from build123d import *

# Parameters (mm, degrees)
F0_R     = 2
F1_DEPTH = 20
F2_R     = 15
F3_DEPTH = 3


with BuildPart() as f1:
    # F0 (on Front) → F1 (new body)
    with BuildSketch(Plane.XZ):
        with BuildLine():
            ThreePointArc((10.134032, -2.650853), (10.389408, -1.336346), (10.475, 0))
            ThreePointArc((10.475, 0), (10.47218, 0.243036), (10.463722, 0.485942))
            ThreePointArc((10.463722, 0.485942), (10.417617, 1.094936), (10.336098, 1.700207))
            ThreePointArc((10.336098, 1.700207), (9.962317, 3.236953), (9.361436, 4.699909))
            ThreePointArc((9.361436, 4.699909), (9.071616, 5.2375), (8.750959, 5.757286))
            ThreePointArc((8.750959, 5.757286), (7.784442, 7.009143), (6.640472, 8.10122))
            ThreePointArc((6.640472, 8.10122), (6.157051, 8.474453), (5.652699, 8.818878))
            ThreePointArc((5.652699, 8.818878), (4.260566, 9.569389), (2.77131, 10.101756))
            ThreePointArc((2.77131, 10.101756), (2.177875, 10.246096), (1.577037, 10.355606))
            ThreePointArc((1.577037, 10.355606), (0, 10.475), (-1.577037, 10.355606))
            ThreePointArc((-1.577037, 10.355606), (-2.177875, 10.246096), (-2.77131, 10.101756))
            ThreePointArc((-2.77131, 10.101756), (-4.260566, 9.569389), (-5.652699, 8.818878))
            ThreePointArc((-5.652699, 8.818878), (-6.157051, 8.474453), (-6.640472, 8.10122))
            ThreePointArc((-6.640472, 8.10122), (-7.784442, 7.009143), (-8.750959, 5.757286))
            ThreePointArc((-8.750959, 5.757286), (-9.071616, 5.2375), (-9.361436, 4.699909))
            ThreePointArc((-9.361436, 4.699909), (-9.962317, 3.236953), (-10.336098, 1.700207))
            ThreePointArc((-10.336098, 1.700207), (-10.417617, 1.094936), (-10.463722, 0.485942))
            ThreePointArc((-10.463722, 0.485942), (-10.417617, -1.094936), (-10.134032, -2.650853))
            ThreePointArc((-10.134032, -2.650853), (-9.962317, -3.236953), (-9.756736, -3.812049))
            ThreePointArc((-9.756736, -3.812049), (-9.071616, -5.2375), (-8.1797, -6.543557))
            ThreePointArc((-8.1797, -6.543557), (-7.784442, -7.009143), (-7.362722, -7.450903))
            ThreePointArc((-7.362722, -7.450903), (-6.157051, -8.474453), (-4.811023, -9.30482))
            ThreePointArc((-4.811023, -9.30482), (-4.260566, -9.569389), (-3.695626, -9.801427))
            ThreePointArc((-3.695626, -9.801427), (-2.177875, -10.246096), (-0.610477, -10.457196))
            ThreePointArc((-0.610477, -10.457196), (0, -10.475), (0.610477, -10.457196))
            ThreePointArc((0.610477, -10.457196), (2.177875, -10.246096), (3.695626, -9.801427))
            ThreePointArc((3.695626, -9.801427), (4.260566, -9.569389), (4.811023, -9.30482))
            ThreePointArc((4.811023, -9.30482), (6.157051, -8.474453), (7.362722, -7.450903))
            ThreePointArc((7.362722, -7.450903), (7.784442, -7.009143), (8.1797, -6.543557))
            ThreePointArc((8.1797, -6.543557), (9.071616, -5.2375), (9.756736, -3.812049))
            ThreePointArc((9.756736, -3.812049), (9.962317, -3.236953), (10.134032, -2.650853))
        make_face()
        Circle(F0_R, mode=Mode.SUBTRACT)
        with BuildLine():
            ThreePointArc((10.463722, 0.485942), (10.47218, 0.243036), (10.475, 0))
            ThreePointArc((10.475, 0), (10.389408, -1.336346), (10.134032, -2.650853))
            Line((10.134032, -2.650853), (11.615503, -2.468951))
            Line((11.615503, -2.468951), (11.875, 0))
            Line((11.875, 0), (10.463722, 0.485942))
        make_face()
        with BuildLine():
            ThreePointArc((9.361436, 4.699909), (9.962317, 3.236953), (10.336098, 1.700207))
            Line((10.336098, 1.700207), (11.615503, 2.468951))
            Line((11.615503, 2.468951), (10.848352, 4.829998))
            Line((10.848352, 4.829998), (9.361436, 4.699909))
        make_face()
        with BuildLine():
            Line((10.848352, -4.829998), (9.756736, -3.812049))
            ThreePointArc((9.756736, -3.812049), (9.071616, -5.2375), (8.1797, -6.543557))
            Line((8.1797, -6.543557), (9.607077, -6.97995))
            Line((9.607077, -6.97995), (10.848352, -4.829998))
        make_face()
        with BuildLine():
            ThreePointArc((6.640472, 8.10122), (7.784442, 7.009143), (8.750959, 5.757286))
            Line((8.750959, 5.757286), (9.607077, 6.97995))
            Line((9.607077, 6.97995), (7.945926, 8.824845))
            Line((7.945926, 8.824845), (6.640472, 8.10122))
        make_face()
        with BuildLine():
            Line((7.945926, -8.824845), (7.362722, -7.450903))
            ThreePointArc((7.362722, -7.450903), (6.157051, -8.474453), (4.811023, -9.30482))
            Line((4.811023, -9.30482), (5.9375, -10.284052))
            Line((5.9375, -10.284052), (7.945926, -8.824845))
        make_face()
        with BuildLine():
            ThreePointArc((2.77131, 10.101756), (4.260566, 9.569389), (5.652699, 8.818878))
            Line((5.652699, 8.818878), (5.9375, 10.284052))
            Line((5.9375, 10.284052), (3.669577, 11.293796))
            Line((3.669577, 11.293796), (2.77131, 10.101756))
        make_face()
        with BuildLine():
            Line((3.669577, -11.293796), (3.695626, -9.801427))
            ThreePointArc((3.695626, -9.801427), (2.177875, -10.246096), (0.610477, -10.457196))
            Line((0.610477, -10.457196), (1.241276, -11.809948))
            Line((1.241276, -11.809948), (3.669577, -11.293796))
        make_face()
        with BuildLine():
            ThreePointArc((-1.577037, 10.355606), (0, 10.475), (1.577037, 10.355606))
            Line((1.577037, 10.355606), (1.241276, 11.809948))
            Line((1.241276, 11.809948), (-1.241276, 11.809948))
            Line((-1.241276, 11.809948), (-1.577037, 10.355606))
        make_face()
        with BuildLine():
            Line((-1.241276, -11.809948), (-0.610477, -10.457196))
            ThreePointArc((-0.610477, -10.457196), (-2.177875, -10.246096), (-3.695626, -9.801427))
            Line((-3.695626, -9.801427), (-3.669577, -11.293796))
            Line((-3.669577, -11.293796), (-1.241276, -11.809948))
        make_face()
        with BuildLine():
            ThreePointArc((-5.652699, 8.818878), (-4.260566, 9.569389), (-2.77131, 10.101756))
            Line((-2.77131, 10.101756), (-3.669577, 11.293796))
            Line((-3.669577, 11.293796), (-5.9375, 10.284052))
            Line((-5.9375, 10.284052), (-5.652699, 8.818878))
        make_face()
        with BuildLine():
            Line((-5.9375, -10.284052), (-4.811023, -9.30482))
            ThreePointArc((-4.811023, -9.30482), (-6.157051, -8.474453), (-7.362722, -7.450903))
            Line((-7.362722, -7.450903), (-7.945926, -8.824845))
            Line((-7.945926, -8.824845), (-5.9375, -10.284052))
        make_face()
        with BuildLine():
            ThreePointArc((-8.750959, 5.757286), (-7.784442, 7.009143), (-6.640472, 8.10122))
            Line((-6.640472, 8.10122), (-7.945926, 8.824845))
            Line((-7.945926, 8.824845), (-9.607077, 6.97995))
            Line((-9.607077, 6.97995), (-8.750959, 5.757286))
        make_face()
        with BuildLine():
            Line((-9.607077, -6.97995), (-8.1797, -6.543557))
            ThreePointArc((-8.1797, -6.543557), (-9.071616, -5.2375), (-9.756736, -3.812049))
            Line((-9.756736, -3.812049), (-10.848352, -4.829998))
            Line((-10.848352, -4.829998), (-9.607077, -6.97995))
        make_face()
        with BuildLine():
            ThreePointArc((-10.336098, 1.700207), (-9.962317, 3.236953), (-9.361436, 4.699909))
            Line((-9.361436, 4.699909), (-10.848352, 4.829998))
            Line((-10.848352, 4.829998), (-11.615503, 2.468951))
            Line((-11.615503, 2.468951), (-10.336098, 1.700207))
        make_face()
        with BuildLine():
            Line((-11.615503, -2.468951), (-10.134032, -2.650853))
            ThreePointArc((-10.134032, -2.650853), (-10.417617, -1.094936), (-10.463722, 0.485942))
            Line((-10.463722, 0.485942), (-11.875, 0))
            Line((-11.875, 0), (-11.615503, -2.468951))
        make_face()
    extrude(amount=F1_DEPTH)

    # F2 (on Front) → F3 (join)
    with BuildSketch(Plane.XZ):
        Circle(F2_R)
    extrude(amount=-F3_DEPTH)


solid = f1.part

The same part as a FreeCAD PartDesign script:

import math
import FreeCAD as App
import Part
import Sketcher
from FreeCAD import Vector
Q = App.Units.Quantity

doc = App.newDocument("Part")
body = doc.addObject("PartDesign::Body", "Body")

# Sketch on XZ plane
sketch1 = body.newObject("Sketcher::SketchObject", "Sketch")
sketch1.AttachmentSupport = (doc.getObject("XZ_Plane"), [""])
sketch1.MapMode = "FlatFace"
sketch1.addGeometry(Part.ArcOfCircle(Part.Circle(Vector(0.000112, -0.000032, 0), Vector(0, 0, 1), 10.474883), math.radians(-21.34112), math.radians(-14.658929)), False)
sketch1.addGeometry(Part.LineSegment(Vector(10.134032, -2.650853, 0), Vector(11.615503, -2.468951, 0)), False)
sketch1.addGeometry(Part.LineSegment(Vector(11.615503, -2.468951, 0), Vector(11.875, 0, 0)), False)
sketch1.addGeometry(Part.LineSegment(Vector(11.875, 0, 0), Vector(10.463722, 0.485942, 0)), False)
sketch1.addGeometry(Part.ArcOfCircle(Part.Circle(Vector(0.000198, 0.000024, 0), Vector(0, 0, 1), 10.474801), math.radians(2.658861), math.radians(9.341102)), False)
sketch1.addGeometry(Part.LineSegment(Vector(10.336098, 1.700207, 0), Vector(11.615503, 2.468951, 0)), False)
sketch1.addGeometry(Part.LineSegment(Vector(11.615503, 2.468951, 0), Vector(10.848352, 4.829998, 0)), False)
sketch1.addGeometry(Part.LineSegment(Vector(10.848352, 4.829998, 0), Vector(9.361436, 4.699909, 0)), False)
sketch1.addGeometry(Part.ArcOfCircle(Part.Circle(Vector(-0.000095, -0.000057, 0), Vector(0, 0, 1), 10.475111), math.radians(26.658982), math.radians(33.341027)), False)
sketch1.addGeometry(Part.LineSegment(Vector(8.750959, 5.757286, 0), Vector(9.607077, 6.97995, 0)), False)
sketch1.addGeometry(Part.LineSegment(Vector(9.607077, 6.97995, 0), Vector(7.945926, 8.824845, 0)), False)
sketch1.addGeometry(Part.LineSegment(Vector(7.945926, 8.824845, 0), Vector(6.640472, 8.10122, 0)), False)
sketch1.addGeometry(Part.ArcOfCircle(Part.Circle(Vector(0.000108, 0.000135, 0), Vector(0, 0, 1), 10.474828), math.radians(50.658928), math.radians(57.341155)), False)
sketch1.addGeometry(Part.LineSegment(Vector(5.652699, 8.818878, 0), Vector(5.9375, 10.284052, 0)), False)
sketch1.addGeometry(Part.LineSegment(Vector(5.9375, 10.284052, 0), Vector(3.669577, 11.293796, 0)), False)
sketch1.addGeometry(Part.LineSegment(Vector(3.669577, 11.293796, 0), Vector(2.77131, 10.101756, 0)), False)
sketch1.addGeometry(Part.ArcOfCircle(Part.Circle(Vector(-0.000022, -0.000128, 0), Vector(0, 0, 1), 10.475129), math.radians(74.65901), math.radians(81.341042)), False)
sketch1.addGeometry(Part.LineSegment(Vector(1.577037, 10.355606, 0), Vector(1.241276, 11.809948, 0)), False)
sketch1.addGeometry(Part.LineSegment(Vector(1.241276, 11.809948, 0), Vector(-1.241276, 11.809948, 0)), False)
sketch1.addGeometry(Part.LineSegment(Vector(-1.241276, 11.809948, 0), Vector(-1.577037, 10.355606, 0)), False)
sketch1.addGeometry(Part.ArcOfCircle(Part.Circle(Vector(0.000022, -0.000128, 0), Vector(0, 0, 1), 10.475129), math.radians(98.658958), math.radians(105.34099)), False)
sketch1.addGeometry(Part.LineSegment(Vector(-2.77131, 10.101756, 0), Vector(-3.669577, 11.293796, 0)), False)
sketch1.addGeometry(Part.LineSegment(Vector(-3.669577, 11.293796, 0), Vector(-5.9375, 10.284052, 0)), False)
sketch1.addGeometry(Part.LineSegment(Vector(-5.9375, 10.284052, 0), Vector(-5.652699, 8.818878, 0)), False)
sketch1.addGeometry(Part.ArcOfCircle(Part.Circle(Vector(-0.000108, 0.000135, 0), Vector(0, 0, 1), 10.474828), math.radians(122.658845), math.radians(129.341072)), False)
sketch1.addGeometry(Part.LineSegment(Vector(-6.640472, 8.10122, 0), Vector(-7.945926, 8.824845, 0)), False)
sketch1.addGeometry(Part.LineSegment(Vector(-7.945926, 8.824845, 0), Vector(-9.607077, 6.97995, 0)), False)
sketch1.addGeometry(Part.LineSegment(Vector(-9.607077, 6.97995, 0), Vector(-8.750959, 5.757286, 0)), False)
sketch1.addGeometry(Part.ArcOfCircle(Part.Circle(Vector(0.000095, -0.000057, 0), Vector(0, 0, 1), 10.475111), math.radians(146.658973), math.radians(153.341018)), False)
sketch1.addGeometry(Part.LineSegment(Vector(-9.361436, 4.699909, 0), Vector(-10.848352, 4.829998, 0)), False)
sketch1.addGeometry(Part.LineSegment(Vector(-10.848352, 4.829998, 0), Vector(-11.615503, 2.468951, 0)), False)
sketch1.addGeometry(Part.LineSegment(Vector(-11.615503, 2.468951, 0), Vector(-10.336098, 1.700207, 0)), False)
sketch1.addGeometry(Part.ArcOfCircle(Part.Circle(Vector(-0.000198, 0.000024, 0), Vector(0, 0, 1), 10.474801), math.radians(170.658898), math.radians(177.341139)), False)
sketch1.addGeometry(Part.LineSegment(Vector(-10.463722, 0.485942, 0), Vector(-11.875, 0, 0)), False)
sketch1.addGeometry(Part.LineSegment(Vector(-11.875, 0, 0), Vector(-11.615503, -2.468951, 0)), False)
sketch1.addGeometry(Part.LineSegment(Vector(-11.615503, -2.468951, 0), Vector(-10.134032, -2.650853, 0)), False)
sketch1.addGeometry(Part.ArcOfCircle(Part.Circle(Vector(-0.000112, -0.000032, 0), Vector(0, 0, 1), 10.474883), math.radians(-165.341071), math.radians(-158.65888)), False)
sketch1.addGeometry(Part.LineSegment(Vector(-9.756736, -3.812049, 0), Vector(-10.848352, -4.829998, 0)), False)
sketch1.addGeometry(Part.LineSegment(Vector(-10.848352, -4.829998, 0), Vector(-9.607077, -6.97995, 0)), False)
sketch1.addGeometry(Part.LineSegment(Vector(-9.607077, -6.97995, 0), Vector(-8.1797, -6.543557, 0)), False)
sketch1.addGeometry(Part.ArcOfCircle(Part.Circle(Vector(0.000161, 0.000144, 0), Vector(0, 0, 1), 10.475216), math.radians(-141.340991), math.radians(-134.65901)), False)
sketch1.addGeometry(Part.LineSegment(Vector(-7.362722, -7.450903, 0), Vector(-7.945926, -8.824845, 0)), False)
sketch1.addGeometry(Part.LineSegment(Vector(-7.945926, -8.824845, 0), Vector(-5.9375, -10.284052, 0)), False)
sketch1.addGeometry(Part.LineSegment(Vector(-5.9375, -10.284052, 0), Vector(-4.811023, -9.30482, 0)), False)
sketch1.addGeometry(Part.ArcOfCircle(Part.Circle(Vector(-0.000093, -0.000214, 0), Vector(0, 0, 1), 10.474767), math.radians(-117.341144), math.radians(-110.658878)), False)
sketch1.addGeometry(Part.LineSegment(Vector(-3.695626, -9.801427, 0), Vector(-3.669577, -11.293796, 0)), False)
sketch1.addGeometry(Part.LineSegment(Vector(-3.669577, -11.293796, 0), Vector(-1.241276, -11.809948, 0)), False)
sketch1.addGeometry(Part.LineSegment(Vector(-1.241276, -11.809948, 0), Vector(-0.610477, -10.457196, 0)), False)
sketch1.addGeometry(Part.ArcOfCircle(Part.Circle(Vector(0, 0.00015, 0), Vector(0, 0, 1), 10.47515), math.radians(-93.34101), math.radians(-86.65899)), False)
sketch1.addGeometry(Part.LineSegment(Vector(0.610477, -10.457196, 0), Vector(1.241276, -11.809948, 0)), False)
sketch1.addGeometry(Part.LineSegment(Vector(1.241276, -11.809948, 0), Vector(3.669577, -11.293796, 0)), False)
sketch1.addGeometry(Part.LineSegment(Vector(3.669577, -11.293796, 0), Vector(3.695626, -9.801427, 0)), False)
sketch1.addGeometry(Part.ArcOfCircle(Part.Circle(Vector(0.000093, -0.000214, 0), Vector(0, 0, 1), 10.474767), math.radians(-69.341122), math.radians(-62.658856)), False)
sketch1.addGeometry(Part.LineSegment(Vector(4.811023, -9.30482, 0), Vector(5.9375, -10.284052, 0)), False)
sketch1.addGeometry(Part.LineSegment(Vector(5.9375, -10.284052, 0), Vector(7.945926, -8.824845, 0)), False)
sketch1.addGeometry(Part.LineSegment(Vector(7.945926, -8.824845, 0), Vector(7.362722, -7.450903, 0)), False)
sketch1.addGeometry(Part.ArcOfCircle(Part.Circle(Vector(-0.000161, 0.000144, 0), Vector(0, 0, 1), 10.475216), math.radians(-45.34099), math.radians(-38.659009)), False)
sketch1.addGeometry(Part.LineSegment(Vector(8.1797, -6.543557, 0), Vector(9.607077, -6.97995, 0)), False)
sketch1.addGeometry(Part.LineSegment(Vector(9.607077, -6.97995, 0), Vector(10.848352, -4.829998, 0)), False)
sketch1.addGeometry(Part.LineSegment(Vector(10.848352, -4.829998, 0), Vector(9.756736, -3.812049, 0)), False)
sketch1.addGeometry(Part.Circle(Vector(0, 0, 0), Vector(0, 0, 1), 2), False)
sketch1.addConstraint(Sketcher.Constraint("Coincident", 0, 2, 1, 1))
sketch1.addConstraint(Sketcher.Constraint("Coincident", 1, 2, 2, 1))
sketch1.addConstraint(Sketcher.Constraint("Coincident", 2, 2, 3, 1))
sketch1.addConstraint(Sketcher.Constraint("Coincident", 3, 2, 4, 1))
sketch1.addConstraint(Sketcher.Constraint("Coincident", 4, 2, 5, 1))
sketch1.addConstraint(Sketcher.Constraint("Coincident", 5, 2, 6, 1))
sketch1.addConstraint(Sketcher.Constraint("Coincident", 6, 2, 7, 1))
sketch1.addConstraint(Sketcher.Constraint("Coincident", 7, 2, 8, 1))
sketch1.addConstraint(Sketcher.Constraint("Coincident", 8, 2, 9, 1))
sketch1.addConstraint(Sketcher.Constraint("Coincident", 9, 2, 10, 1))
sketch1.addConstraint(Sketcher.Constraint("Coincident", 10, 2, 11, 1))
sketch1.addConstraint(Sketcher.Constraint("Coincident", 11, 2, 12, 1))
sketch1.addConstraint(Sketcher.Constraint("Coincident", 12, 2, 13, 1))
sketch1.addConstraint(Sketcher.Constraint("Coincident", 13, 2, 14, 1))
sketch1.addConstraint(Sketcher.Constraint("Coincident", 14, 2, 15, 1))
sketch1.addConstraint(Sketcher.Constraint("Coincident", 15, 2, 16, 1))
sketch1.addConstraint(Sketcher.Constraint("Coincident", 16, 2, 17, 1))
sketch1.addConstraint(Sketcher.Constraint("Coincident", 17, 2, 18, 1))
sketch1.addConstraint(Sketcher.Constraint("Coincident", 18, 2, 19, 1))
sketch1.addConstraint(Sketcher.Constraint("Coincident", 19, 2, 20, 1))
sketch1.addConstraint(Sketcher.Constraint("Coincident", 20, 2, 21, 1))
sketch1.addConstraint(Sketcher.Constraint("Coincident", 21, 2, 22, 1))
sketch1.addConstraint(Sketcher.Constraint("Coincident", 22, 2, 23, 1))
sketch1.addConstraint(Sketcher.Constraint("Coincident", 23, 2, 24, 1))
sketch1.addConstraint(Sketcher.Constraint("Coincident", 24, 2, 25, 1))
sketch1.addConstraint(Sketcher.Constraint("Coincident", 25, 2, 26, 1))
sketch1.addConstraint(Sketcher.Constraint("Coincident", 26, 2, 27, 1))
sketch1.addConstraint(Sketcher.Constraint("Coincident", 27, 2, 28, 1))
sketch1.addConstraint(Sketcher.Constraint("Coincident", 28, 2, 29, 1))
sketch1.addConstraint(Sketcher.Constraint("Coincident", 29, 2, 30, 1))
sketch1.addConstraint(Sketcher.Constraint("Coincident", 30, 2, 31, 1))
sketch1.addConstraint(Sketcher.Constraint("Coincident", 31, 2, 32, 1))
sketch1.addConstraint(Sketcher.Constraint("Coincident", 32, 2, 33, 1))
sketch1.addConstraint(Sketcher.Constraint("Coincident", 33, 2, 34, 1))
sketch1.addConstraint(Sketcher.Constraint("Coincident", 34, 2, 35, 1))
sketch1.addConstraint(Sketcher.Constraint("Coincident", 35, 2, 36, 1))
sketch1.addConstraint(Sketcher.Constraint("Coincident", 36, 2, 37, 1))
sketch1.addConstraint(Sketcher.Constraint("Coincident", 37, 2, 38, 1))
sketch1.addConstraint(Sketcher.Constraint("Coincident", 38, 2, 39, 1))
sketch1.addConstraint(Sketcher.Constraint("Coincident", 39, 2, 40, 1))
sketch1.addConstraint(Sketcher.Constraint("Coincident", 40, 2, 41, 1))
sketch1.addConstraint(Sketcher.Constraint("Coincident", 41, 2, 42, 1))
sketch1.addConstraint(Sketcher.Constraint("Coincident", 42, 2, 43, 1))
sketch1.addConstraint(Sketcher.Constraint("Coincident", 43, 2, 44, 1))
sketch1.addConstraint(Sketcher.Constraint("Coincident", 44, 2, 45, 1))
sketch1.addConstraint(Sketcher.Constraint("Coincident", 45, 2, 46, 1))
sketch1.addConstraint(Sketcher.Constraint("Coincident", 46, 2, 47, 1))
sketch1.addConstraint(Sketcher.Constraint("Coincident", 47, 2, 48, 1))
sketch1.addConstraint(Sketcher.Constraint("Coincident", 48, 2, 49, 1))
sketch1.addConstraint(Sketcher.Constraint("Coincident", 49, 2, 50, 1))
sketch1.addConstraint(Sketcher.Constraint("Coincident", 50, 2, 51, 1))
sketch1.addConstraint(Sketcher.Constraint("Coincident", 51, 2, 52, 1))
sketch1.addConstraint(Sketcher.Constraint("Coincident", 52, 2, 53, 1))
sketch1.addConstraint(Sketcher.Constraint("Coincident", 53, 2, 54, 1))
sketch1.addConstraint(Sketcher.Constraint("Coincident", 54, 2, 55, 1))
sketch1.addConstraint(Sketcher.Constraint("Coincident", 55, 2, 56, 1))
sketch1.addConstraint(Sketcher.Constraint("Coincident", 56, 2, 57, 1))
sketch1.addConstraint(Sketcher.Constraint("Coincident", 57, 2, 58, 1))
sketch1.addConstraint(Sketcher.Constraint("Coincident", 58, 2, 59, 1))
sketch1.addConstraint(Sketcher.Constraint("Coincident", 59, 2, 0, 1))
sketch1.addConstraint(Sketcher.Constraint("Horizontal", 18))
sketch1.addConstraint(Sketcher.Constraint("Coincident", 60, 3, -1, 1))
sketch1.addConstraint(Sketcher.Constraint("Equal", 16, 20))
sketch1.addConstraint(Sketcher.Constraint("Equal", 12, 24))
sketch1.addConstraint(Sketcher.Constraint("Equal", 8, 28))
sketch1.addConstraint(Sketcher.Constraint("Equal", 4, 32))
sketch1.addConstraint(Sketcher.Constraint("Equal", 0, 36))
sketch1.addConstraint(Sketcher.Constraint("Equal", 44, 52))
sketch1.addConstraint(Sketcher.Constraint("Equal", 40, 56))
sketch1.addConstraint(Sketcher.Constraint("Symmetric", 1, 2, 30, 2, -1, 1))
sketch1.addConstraint(Sketcher.Constraint("Symmetric", 2, 2, 33, 2, -1, 1))
sketch1.addConstraint(Sketcher.Constraint("Symmetric", 5, 2, 34, 2, -1, 1))
sketch1.addConstraint(Sketcher.Constraint("Symmetric", 6, 2, 37, 2, -1, 1))
sketch1.addConstraint(Sketcher.Constraint("Symmetric", 9, 2, 38, 2, -1, 1))
sketch1.addConstraint(Sketcher.Constraint("Symmetric", 10, 2, 41, 2, -1, 1))
sketch1.addConstraint(Sketcher.Constraint("Symmetric", 13, 2, 42, 2, -1, 1))
sketch1.addConstraint(Sketcher.Constraint("Symmetric", 14, 2, 45, 2, -1, 1))
sketch1.addConstraint(Sketcher.Constraint("Symmetric", 17, 2, 46, 2, -1, 1))
sketch1.addConstraint(Sketcher.Constraint("Symmetric", 18, 2, 49, 2, -1, 1))
sketch1.addConstraint(Sketcher.Constraint("Symmetric", 21, 2, 50, 2, -1, 1))
sketch1.addConstraint(Sketcher.Constraint("Symmetric", 22, 2, 53, 2, -1, 1))
sketch1.addConstraint(Sketcher.Constraint("Symmetric", 25, 2, 54, 2, -1, 1))
sketch1.addConstraint(Sketcher.Constraint("Symmetric", 26, 2, 57, 2, -1, 1))
sketch1.addConstraint(Sketcher.Constraint("Symmetric", 29, 2, 58, 2, -1, 1))
sketch1.addConstraint(Sketcher.Constraint("Symmetric", 16, 3, 20, 3, -2))
sketch1.addConstraint(Sketcher.Constraint("Symmetric", 12, 3, 24, 3, -2))
sketch1.addConstraint(Sketcher.Constraint("Symmetric", 8, 3, 28, 3, -2))
sketch1.addConstraint(Sketcher.Constraint("Symmetric", 4, 3, 32, 3, -2))
sketch1.addConstraint(Sketcher.Constraint("Symmetric", 0, 3, 36, 3, -2))
sketch1.addConstraint(Sketcher.Constraint("Symmetric", 44, 3, 52, 3, -2))
sketch1.addConstraint(Sketcher.Constraint("Symmetric", 40, 3, 56, 3, -2))
sketch1.addConstraint(Sketcher.Constraint("Symmetric", 14, 2, 21, 2, -2))
sketch1.addConstraint(Sketcher.Constraint("Symmetric", 13, 2, 22, 2, -2))
sketch1.addConstraint(Sketcher.Constraint("Symmetric", 10, 2, 25, 2, -2))
sketch1.addConstraint(Sketcher.Constraint("Symmetric", 9, 2, 26, 2, -2))
sketch1.addConstraint(Sketcher.Constraint("Symmetric", 6, 2, 29, 2, -2))
sketch1.addConstraint(Sketcher.Constraint("Symmetric", 5, 2, 30, 2, -2))
sketch1.addConstraint(Sketcher.Constraint("Symmetric", 47, 2, 48, 2, -2))
sketch1.addConstraint(Sketcher.Constraint("PointOnObject", 2, 2, -1))
sketch1.addConstraint(Sketcher.Constraint("Horizontal", 16, 2, 19, 2))
sketch1.addConstraint(Sketcher.Constraint("Horizontal", 15, 2, 20, 2))
sketch1.addConstraint(Sketcher.Constraint("Horizontal", 12, 2, 23, 2))
sketch1.addConstraint(Sketcher.Constraint("Horizontal", 11, 2, 24, 2))
sketch1.addConstraint(Sketcher.Constraint("Horizontal", 8, 2, 27, 2))
sketch1.addConstraint(Sketcher.Constraint("Horizontal", 7, 2, 28, 2))
sketch1.addConstraint(Sketcher.Constraint("Horizontal", 4, 2, 31, 2))
sketch1.addConstraint(Sketcher.Constraint("Horizontal", 3, 2, 32, 2))
sketch1.addConstraint(Sketcher.Constraint("Horizontal", 0, 2, 35, 2))
sketch1.addConstraint(Sketcher.Constraint("Horizontal", 44, 2, 51, 2))
sketch1.addConstraint(Sketcher.Constraint("Horizontal", 43, 2, 52, 2))
sketch1.addConstraint(Sketcher.Constraint("Horizontal", 40, 2, 55, 2))
sketch1.addConstraint(Sketcher.Constraint("Horizontal", 39, 2, 56, 2))
sketch1.addConstraint(Sketcher.Constraint("Horizontal", 36, 2, 59, 2))
sketch1.addConstraint(Sketcher.Constraint("Vertical", 18, 2, 46, 2))
sketch1.addConstraint(Sketcher.Constraint("Equal", 1, 3))
sketch1.addConstraint(Sketcher.Constraint("Equal", 3, 5))
sketch1.addConstraint(Sketcher.Constraint("Equal", 2, 6))
sketch1.addConstraint(Sketcher.Constraint("Equal", 5, 7))
sketch1.addConstraint(Sketcher.Constraint("Equal", 7, 9))
sketch1.addConstraint(Sketcher.Constraint("Equal", 6, 10))
sketch1.addConstraint(Sketcher.Constraint("Equal", 9, 11))
sketch1.addConstraint(Sketcher.Constraint("Equal", 11, 13))
sketch1.addConstraint(Sketcher.Constraint("Equal", 10, 14))
sketch1.addConstraint(Sketcher.Constraint("Equal", 13, 15))
sketch1.addConstraint(Sketcher.Constraint("Equal", 15, 17))
sketch1.addConstraint(Sketcher.Constraint("Equal", 35, 37))
sketch1.addConstraint(Sketcher.Constraint("Equal", 34, 38))
sketch1.addConstraint(Sketcher.Constraint("Equal", 37, 39))
sketch1.addConstraint(Sketcher.Constraint("Equal", 39, 41))
sketch1.addConstraint(Sketcher.Constraint("Equal", 38, 42))
sketch1.addConstraint(Sketcher.Constraint("Equal", 41, 43))
sketch1.addConstraint(Sketcher.Constraint("Equal", 43, 45))
sketch1.addConstraint(Sketcher.Constraint("Equal", 42, 46))
sketch1.addConstraint(Sketcher.Constraint("Equal", 45, 47))
sketch1.addConstraint(Sketcher.Constraint("Diameter", 60, 4.0))
sketch1.addConstraint(Sketcher.Constraint("Angle", 1, Q("7.000009 deg")))
sketch1.addConstraint(Sketcher.Constraint("Angle", 2, Q("84.000005 deg")))
sketch1.addConstraint(Sketcher.Constraint("Angle", 3, Q("160.999999 deg")))
sketch1.addConstraint(Sketcher.Constraint("Angle", 5, Q("30.999997 deg")))
sketch1.addConstraint(Sketcher.Constraint("Angle", 6, Q("108.000007 deg")))
sketch1.addConstraint(Sketcher.Constraint("Angle", 9, Q("55.000017 deg")))
sketch1.addConstraint(Sketcher.Constraint("Angle", 10, Q("132.000001 deg")))
sketch1.addConstraint(Sketcher.Constraint("Angle", 11, Q("-150.999999 deg")))
sketch1.addConstraint(Sketcher.Constraint("Angle", 13, Q("78.999999 deg")))
sketch1.addConstraint(Sketcher.Constraint("Angle", 14, Q("156.000008 deg")))
sketch1.addConstraint(Sketcher.Constraint("Angle", 15, Q("-127.000013 deg")))
sketch1.addConstraint(Sketcher.Constraint("Angle", 17, Q("102.999989 deg")))
sketch1.addConstraint(Sketcher.Constraint("Angle", 37, Q("-136.999983 deg")))
sketch1.addConstraint(Sketcher.Constraint("Angle", 38, Q("-60.000007 deg")))
sketch1.addConstraint(Sketcher.Constraint("Angle", 39, Q("17.000002 deg")))
sketch1.addConstraint(Sketcher.Constraint("Angle", 41, Q("-113.000008 deg")))
sketch1.addConstraint(Sketcher.Constraint("Angle", 42, Q("-36.000002 deg")))
sketch1.addConstraint(Sketcher.Constraint("Angle", 43, Q("41.000014 deg")))
sketch1.addConstraint(Sketcher.Constraint("Angle", 45, Q("-89.000015 deg")))
sketch1.addConstraint(Sketcher.Constraint("Angle", 46, Q("-12.000016 deg")))
sketch1.addConstraint(Sketcher.Constraint("Angle", 47, Q("64.999987 deg")))
sketch1.addConstraint(Sketcher.Constraint("Radius", 4, 10.474801))
sketch1.addConstraint(Sketcher.Constraint("Radius", 8, 10.475111))
sketch1.addConstraint(Sketcher.Constraint("Radius", 16, 10.475129))
sketch1.addConstraint(Sketcher.Constraint("Radius", 48, 10.47515))
sketch1.addConstraint(Sketcher.Constraint("DistanceX", -1, 1, 2, 2, 11.875))
sketch1.addConstraint(Sketcher.Constraint("Radius", 0, 10.474883))
sketch1.addConstraint(Sketcher.Constraint("Radius", 12, 10.474828))
sketch1.addConstraint(Sketcher.Constraint("Radius", 40, 10.475216))
sketch1.addConstraint(Sketcher.Constraint("Radius", 44, 10.474767))
sketch1.addConstraint(Sketcher.Constraint("DistanceX", -1, 1, 12, 2, 5.652699))
sketch1.addConstraint(Sketcher.Constraint("DistanceX", -1, 1, 13, 2, 5.9375))
sketch1.addConstraint(Sketcher.Constraint("DistanceY", -1, 1, 7, 2, 4.699909))
pad1 = body.newObject("PartDesign::Pad", "Pad")
pad1.Profile = sketch1
pad1.Length = 20

# Sketch on XZ plane
sketch2 = body.newObject("Sketcher::SketchObject", "Sketch001")
sketch2.AttachmentSupport = (doc.getObject("XZ_Plane"), [""])
sketch2.MapMode = "FlatFace"
sketch2.addGeometry(Part.Circle(Vector(0, 0, 0), Vector(0, 0, 1), 15), False)
sketch2.addConstraint(Sketcher.Constraint("Coincident", 0, 3, -1, 1))
sketch2.addConstraint(Sketcher.Constraint("Diameter", 0, 30.0))
pad2 = body.newObject("PartDesign::Pad", "Pad001")
pad2.Profile = sketch2
pad2.Length = 3
pad2.Reversed = True

doc.recompute()
